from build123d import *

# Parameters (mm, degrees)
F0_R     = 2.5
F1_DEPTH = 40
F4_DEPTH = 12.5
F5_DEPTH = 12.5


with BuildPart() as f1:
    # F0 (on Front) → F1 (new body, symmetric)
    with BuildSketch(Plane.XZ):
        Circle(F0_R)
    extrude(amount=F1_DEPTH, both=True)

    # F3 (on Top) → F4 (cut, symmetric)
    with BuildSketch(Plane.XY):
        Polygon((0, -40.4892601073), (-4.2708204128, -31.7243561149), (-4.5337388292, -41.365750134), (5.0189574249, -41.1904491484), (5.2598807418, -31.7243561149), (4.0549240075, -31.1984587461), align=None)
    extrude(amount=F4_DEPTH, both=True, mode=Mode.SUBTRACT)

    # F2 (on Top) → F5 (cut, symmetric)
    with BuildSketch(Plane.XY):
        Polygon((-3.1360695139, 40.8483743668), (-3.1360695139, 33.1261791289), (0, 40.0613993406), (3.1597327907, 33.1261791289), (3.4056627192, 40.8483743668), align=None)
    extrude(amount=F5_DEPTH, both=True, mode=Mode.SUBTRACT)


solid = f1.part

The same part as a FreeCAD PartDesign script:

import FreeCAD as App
import Part
import Sketcher
from FreeCAD import Vector

doc = App.newDocument("Part")
body = doc.addObject("PartDesign::Body", "Body")

sketch1 = doc.addObject("Sketcher::SketchObject", "Sketch")
body.addObject(sketch1)
sketch1.AttachmentSupport = (doc.XZ_Plane, [""])
sketch1.MapMode = "FlatFace"
sketch1.addGeometry(Part.Circle(Vector(0, 0, 0), Vector(0, 0, 1), 2.5), False)
sketch1.addConstraint([
    Sketcher.Constraint("Coincident", 0, 3, -1, 1),
    Sketcher.Constraint("Diameter", 0, 5.0),
])
pad1 = doc.addObject("PartDesign::Pad", "Pad")
body.addObject(pad1)
pad1.Profile = sketch1
pad1.Length = 80
pad1.Midplane = True

sketch2 = doc.addObject("Sketcher::SketchObject", "Sketch001")
body.addObject(sketch2)
sketch2.AttachmentSupport = (doc.XY_Plane, [""])
sketch2.MapMode = "FlatFace"
sketch2.addGeometry([
    Part.LineSegment(Vector(0, -40.5, 0), Vector(-4.3, -31.7, 0)),
    Part.LineSegment(Vector(-4.3, -31.7, 0), Vector(-4.5, -41.4, 0)),
    Part.LineSegment(Vector(-4.5, -41.4, 0), Vector(5, -41.2, 0)),
    Part.LineSegment(Vector(5, -41.2, 0), Vector(5.3, -31.7, 0)),
    Part.LineSegment(Vector(5.3, -31.7, 0), Vector(4.1, -31.2, 0)),
    Part.LineSegment(Vector(4.1, -31.2, 0), Vector(0, -40.5, 0)),
], False)
sketch2.addConstraint([
    Sketcher.Constraint("Coincident", 0, 2, 1, 1),
    Sketcher.Constraint("Coincident", 1, 2, 2, 1),
    Sketcher.Constraint("Coincident", 2, 2, 3, 1),
    Sketcher.Constraint("Coincident", 3, 2, 4, 1),
    Sketcher.Constraint("Coincident", 4, 2, 5, 1),
    Sketcher.Constraint("Coincident", 5, 2, 0, 1),
    Sketcher.Constraint("PointOnObject", 5, 2, -2),
    Sketcher.Constraint("Perpendicular", 4, 5),
    Sketcher.Constraint("Horizontal", 0, 2, 3, 2),
    Sketcher.Constraint("DistanceY", 1, 2, 2, 2, 0.175301),
    Sketcher.Constraint("DistanceX", 0, 2, 3, 2, 9.530701),
    Sketcher.Constraint("DistanceY", 5, 2, 4, 2, 9.290801),
    Sketcher.Constraint("Distance", 0, 9.750049),
    Sketcher.Constraint("Distance", 1, 9.644978),
    Sketcher.Constraint("Distance", 3, 9.469158),
    Sketcher.Constraint("Distance", 4, 1.31472),
    Sketcher.Constraint("DistanceX", 1, 2, -1, 1, 4.533739),
    Sketcher.Constraint("DistanceY", 1, 2, -1, 1, 41.36575),
])
pocket1 = doc.addObject("PartDesign::Pocket", "Pocket")
body.addObject(pocket1)
pocket1.Profile = sketch2
pocket1.Length = 25
pocket1.Midplane = True

sketch3 = doc.addObject("Sketcher::SketchObject", "Sketch002")
body.addObject(sketch3)
sketch3.AttachmentSupport = (doc.XY_Plane, [""])
sketch3.MapMode = "FlatFace"
sketch3.addGeometry([
    Part.LineSegment(Vector(-3.13607, 40.848374, 0), Vector(-3.13607, 33.126179, 0)),
    Part.LineSegment(Vector(-3.13607, 33.126179, 0), Vector(0, 40.061399, 0)),
    Part.LineSegment(Vector(0, 40.061399, 0), Vector(3.159733, 33.126179, 0)),
    Part.LineSegment(Vector(3.159733, 33.126179, 0), Vector(3.405663, 40.848374, 0)),
    Part.LineSegment(Vector(3.405663, 40.848374, 0), Vector(-3.13607, 40.848374, 0)),
], False)
sketch3.addConstraint([
    Sketcher.Constraint("Coincident", 0, 2, 1, 1),
    Sketcher.Constraint("Coincident", 1, 2, 2, 1),
    Sketcher.Constraint("Coincident", 2, 2, 3, 1),
    Sketcher.Constraint("Coincident", 3, 2, 4, 1),
    Sketcher.Constraint("Coincident", 4, 2, 0, 1),
    Sketcher.Constraint("Vertical", 0),
    Sketcher.Constraint("Horizontal", 4),
    Sketcher.Constraint("PointOnObject", 1, 2, -2),
    Sketcher.Constraint("Horizontal", 0, 2, 2, 2),
    Sketcher.Constraint("Distance", 2, 7.621102),
    Sketcher.Constraint("DistanceY", -1, 1, 1, 2, 40.061399),
    Sketcher.Constraint("Distance", 1, 7.611321),
    Sketcher.Constraint("Distance", 3, 7.72611),
    Sketcher.Constraint("DistanceX", 4, 2, 4, 1, 6.541732),
    Sketcher.Constraint("DistanceY", 0, 2, 0, 1, 7.722195),
])
pocket2 = doc.addObject("PartDesign::Pocket", "Pocket001")
body.addObject(pocket2)
pocket2.Profile = sketch3
pocket2.Length = 25
pocket2.Midplane = True

doc.recompute()
